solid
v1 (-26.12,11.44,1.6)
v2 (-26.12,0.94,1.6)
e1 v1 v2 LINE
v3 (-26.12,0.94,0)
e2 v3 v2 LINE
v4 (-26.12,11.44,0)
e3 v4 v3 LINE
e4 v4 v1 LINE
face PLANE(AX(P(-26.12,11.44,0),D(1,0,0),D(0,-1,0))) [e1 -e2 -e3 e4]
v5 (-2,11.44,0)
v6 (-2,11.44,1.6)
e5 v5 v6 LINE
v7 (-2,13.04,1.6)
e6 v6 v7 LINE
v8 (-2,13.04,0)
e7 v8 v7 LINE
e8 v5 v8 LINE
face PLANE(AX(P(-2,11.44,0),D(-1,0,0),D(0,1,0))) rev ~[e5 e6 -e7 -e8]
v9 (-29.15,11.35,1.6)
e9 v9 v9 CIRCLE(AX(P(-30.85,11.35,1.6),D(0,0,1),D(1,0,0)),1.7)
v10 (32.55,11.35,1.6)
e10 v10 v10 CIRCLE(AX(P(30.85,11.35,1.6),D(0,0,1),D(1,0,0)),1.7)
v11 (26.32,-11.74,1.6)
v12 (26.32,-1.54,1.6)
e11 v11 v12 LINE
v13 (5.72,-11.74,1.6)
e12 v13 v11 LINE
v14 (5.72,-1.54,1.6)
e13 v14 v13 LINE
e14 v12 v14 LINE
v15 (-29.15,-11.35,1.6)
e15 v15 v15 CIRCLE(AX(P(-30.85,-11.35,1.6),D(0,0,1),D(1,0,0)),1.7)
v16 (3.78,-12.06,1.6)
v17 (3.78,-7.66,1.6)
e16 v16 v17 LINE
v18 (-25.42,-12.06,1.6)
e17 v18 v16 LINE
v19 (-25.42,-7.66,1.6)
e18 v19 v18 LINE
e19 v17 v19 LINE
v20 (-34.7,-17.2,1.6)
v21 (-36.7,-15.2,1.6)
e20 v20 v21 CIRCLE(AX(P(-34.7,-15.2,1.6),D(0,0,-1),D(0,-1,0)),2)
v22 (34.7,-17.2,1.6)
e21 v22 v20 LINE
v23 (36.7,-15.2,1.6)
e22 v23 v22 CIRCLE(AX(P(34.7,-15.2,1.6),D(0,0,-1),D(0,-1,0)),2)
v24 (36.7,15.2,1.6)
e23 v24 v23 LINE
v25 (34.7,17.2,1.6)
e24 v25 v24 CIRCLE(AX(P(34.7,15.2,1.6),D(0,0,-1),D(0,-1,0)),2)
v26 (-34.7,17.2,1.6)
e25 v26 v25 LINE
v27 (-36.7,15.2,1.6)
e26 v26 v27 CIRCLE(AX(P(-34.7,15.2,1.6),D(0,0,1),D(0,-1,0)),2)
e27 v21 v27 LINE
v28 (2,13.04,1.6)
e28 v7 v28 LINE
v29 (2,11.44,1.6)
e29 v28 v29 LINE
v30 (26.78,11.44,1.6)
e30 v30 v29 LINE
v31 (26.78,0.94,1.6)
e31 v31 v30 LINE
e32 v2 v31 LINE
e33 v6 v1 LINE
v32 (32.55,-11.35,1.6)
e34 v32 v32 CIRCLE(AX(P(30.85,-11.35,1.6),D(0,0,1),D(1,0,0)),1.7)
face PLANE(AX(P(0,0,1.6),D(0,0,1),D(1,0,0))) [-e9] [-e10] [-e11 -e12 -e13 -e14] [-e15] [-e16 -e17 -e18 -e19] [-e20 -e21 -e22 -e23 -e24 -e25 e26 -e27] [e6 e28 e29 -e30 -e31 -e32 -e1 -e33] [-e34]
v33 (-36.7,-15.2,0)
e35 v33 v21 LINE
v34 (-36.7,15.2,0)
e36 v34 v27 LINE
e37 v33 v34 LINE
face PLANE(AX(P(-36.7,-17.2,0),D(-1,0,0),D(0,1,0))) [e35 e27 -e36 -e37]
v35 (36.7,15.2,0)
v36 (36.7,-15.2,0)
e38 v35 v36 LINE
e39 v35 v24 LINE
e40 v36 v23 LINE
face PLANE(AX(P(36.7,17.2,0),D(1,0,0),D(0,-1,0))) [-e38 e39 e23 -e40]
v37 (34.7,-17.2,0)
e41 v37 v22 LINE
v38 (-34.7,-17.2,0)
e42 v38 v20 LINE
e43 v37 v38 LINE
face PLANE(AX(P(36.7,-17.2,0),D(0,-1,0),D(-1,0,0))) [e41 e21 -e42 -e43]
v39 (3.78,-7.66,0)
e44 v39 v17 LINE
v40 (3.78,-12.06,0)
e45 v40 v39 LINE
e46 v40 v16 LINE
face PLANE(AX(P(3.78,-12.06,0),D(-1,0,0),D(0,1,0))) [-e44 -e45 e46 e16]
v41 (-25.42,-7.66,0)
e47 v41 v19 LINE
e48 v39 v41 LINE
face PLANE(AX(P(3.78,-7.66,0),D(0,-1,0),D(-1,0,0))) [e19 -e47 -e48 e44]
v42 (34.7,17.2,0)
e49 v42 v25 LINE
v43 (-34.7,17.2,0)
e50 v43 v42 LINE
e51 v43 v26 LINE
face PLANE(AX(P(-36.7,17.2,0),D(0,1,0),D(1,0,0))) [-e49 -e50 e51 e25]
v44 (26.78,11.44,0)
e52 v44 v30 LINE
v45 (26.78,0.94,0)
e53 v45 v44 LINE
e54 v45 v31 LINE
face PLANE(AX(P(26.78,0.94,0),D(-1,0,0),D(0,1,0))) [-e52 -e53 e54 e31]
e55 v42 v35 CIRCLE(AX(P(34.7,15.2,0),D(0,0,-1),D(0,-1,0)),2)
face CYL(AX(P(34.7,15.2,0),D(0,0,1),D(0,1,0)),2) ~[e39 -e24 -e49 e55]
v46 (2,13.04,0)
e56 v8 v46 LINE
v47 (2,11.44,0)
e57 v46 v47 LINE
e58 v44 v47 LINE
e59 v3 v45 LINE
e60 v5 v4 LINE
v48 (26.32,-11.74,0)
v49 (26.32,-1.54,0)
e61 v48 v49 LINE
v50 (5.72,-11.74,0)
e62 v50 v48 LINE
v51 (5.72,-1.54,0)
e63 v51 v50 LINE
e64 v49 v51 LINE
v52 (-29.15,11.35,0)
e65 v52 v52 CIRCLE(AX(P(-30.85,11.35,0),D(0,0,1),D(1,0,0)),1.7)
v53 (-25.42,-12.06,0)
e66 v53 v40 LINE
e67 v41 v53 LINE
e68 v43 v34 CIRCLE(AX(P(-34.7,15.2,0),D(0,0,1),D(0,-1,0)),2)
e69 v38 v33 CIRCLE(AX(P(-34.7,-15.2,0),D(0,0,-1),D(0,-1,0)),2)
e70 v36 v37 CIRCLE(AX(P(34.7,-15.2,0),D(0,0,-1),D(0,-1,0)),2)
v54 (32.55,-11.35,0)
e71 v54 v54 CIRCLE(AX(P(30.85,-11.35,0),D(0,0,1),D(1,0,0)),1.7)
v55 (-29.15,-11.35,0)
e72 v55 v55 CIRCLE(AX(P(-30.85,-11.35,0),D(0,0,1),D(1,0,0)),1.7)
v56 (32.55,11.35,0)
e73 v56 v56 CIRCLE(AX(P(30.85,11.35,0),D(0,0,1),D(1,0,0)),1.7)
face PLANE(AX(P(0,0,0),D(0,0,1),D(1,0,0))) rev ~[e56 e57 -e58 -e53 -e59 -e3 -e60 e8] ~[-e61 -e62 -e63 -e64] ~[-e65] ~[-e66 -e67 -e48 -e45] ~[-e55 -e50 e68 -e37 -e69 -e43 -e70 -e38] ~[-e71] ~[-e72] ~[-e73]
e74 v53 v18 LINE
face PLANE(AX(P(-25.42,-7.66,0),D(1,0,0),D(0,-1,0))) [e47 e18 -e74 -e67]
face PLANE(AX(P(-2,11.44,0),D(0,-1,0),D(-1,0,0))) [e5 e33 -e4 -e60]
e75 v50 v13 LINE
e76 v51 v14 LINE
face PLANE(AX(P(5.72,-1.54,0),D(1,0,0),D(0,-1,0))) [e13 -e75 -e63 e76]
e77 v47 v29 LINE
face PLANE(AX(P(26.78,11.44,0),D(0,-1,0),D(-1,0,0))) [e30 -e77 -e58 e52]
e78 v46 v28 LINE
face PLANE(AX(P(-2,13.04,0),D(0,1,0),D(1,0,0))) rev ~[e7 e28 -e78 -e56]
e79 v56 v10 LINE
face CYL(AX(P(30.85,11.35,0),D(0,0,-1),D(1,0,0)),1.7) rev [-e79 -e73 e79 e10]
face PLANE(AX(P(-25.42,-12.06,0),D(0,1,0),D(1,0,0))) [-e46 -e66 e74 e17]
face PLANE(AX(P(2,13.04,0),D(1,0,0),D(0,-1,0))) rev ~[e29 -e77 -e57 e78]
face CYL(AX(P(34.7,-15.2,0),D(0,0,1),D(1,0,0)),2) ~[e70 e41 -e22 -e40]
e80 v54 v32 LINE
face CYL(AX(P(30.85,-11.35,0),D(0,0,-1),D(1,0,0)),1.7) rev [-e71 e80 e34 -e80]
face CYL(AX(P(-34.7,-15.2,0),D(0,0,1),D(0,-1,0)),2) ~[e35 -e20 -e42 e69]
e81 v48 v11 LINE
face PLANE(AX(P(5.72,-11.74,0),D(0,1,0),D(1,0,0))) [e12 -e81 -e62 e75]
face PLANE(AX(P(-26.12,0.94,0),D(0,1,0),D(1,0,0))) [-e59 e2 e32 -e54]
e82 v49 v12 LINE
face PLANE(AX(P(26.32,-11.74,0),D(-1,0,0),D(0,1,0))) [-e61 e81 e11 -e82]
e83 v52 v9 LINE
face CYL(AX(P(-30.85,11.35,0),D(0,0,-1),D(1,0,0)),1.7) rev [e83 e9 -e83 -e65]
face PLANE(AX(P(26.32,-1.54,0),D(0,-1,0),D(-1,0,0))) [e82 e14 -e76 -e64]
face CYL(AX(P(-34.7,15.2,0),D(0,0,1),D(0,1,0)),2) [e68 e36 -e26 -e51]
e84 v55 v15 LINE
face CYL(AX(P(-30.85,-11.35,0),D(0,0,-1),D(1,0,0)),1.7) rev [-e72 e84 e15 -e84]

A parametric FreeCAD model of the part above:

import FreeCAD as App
import Part
import Sketcher

V = App.Vector


def edges_at(feature, points):
    """Names of the edges that pass closest to the given points."""
    edges = feature.Shape.Edges
    near = lambda p: min(range(len(edges)), key=lambda i: edges[i].distToShape(Part.Vertex(*p))[0])
    return sorted({f"Edge{near(p) + 1}" for p in points})

doc = App.newDocument("Part")
body = doc.addObject("PartDesign::Body", "Body")

# Sketch on XY plane
sketch1 = body.newObject("Sketcher::SketchObject", "Sketch")
sketch1.AttachmentSupport = (doc.getObject("XY_Plane"), [""])
sketch1.MapMode = "FlatFace"
sketch1.addGeometry([
    Part.LineSegment(V(36.7, 17.2, 0), V(-36.7, 17.2, 0)),  # 0
    Part.LineSegment(V(-36.7, 17.2, 0), V(-36.7, -17.2, 0)),  # 1
    Part.LineSegment(V(-36.7, -17.2, 0), V(36.7, -17.2, 0)),  # 2
    Part.LineSegment(V(36.7, -17.2, 0), V(36.7, 17.2, 0)),  # 3
    Part.Circle(V(-30.85, -11.35, 0), V(0, 0, 1), 1.7),  # 4
    Part.LineSegment(V(-25.42, -7.66, 0), V(3.78, -7.66, 0)),  # 5
    Part.LineSegment(V(3.78, -7.66, 0), V(3.78, -12.06, 0)),  # 6
    Part.LineSegment(V(3.78, -12.06, 0), V(-25.42, -12.06, 0)),  # 7
    Part.LineSegment(V(-25.42, -12.06, 0), V(-25.42, -7.66, 0)),  # 8
    Part.Circle(V(30.85, -11.35, 0), V(0, 0, 1), 1.7),  # 9
    Part.LineSegment(V(5.72, -1.54, 0), V(26.32, -1.54, 0)),  # 10
    Part.LineSegment(V(26.32, -1.54, 0), V(26.32, -11.74, 0)),  # 11
    Part.LineSegment(V(26.32, -11.74, 0), V(5.72, -11.74, 0)),  # 12
    Part.LineSegment(V(5.72, -11.74, 0), V(5.72, -1.54, 0)),  # 13
    Part.Circle(V(-30.85, 11.35, 0), V(0, 0, 1), 1.7),  # 14
    Part.LineSegment(V(26.78, 11.44, 0), V(26.78, 0.94, 0)),  # 15
    Part.LineSegment(V(26.78, 0.94, 0), V(-26.12, 0.94, 0)),  # 16
    Part.LineSegment(V(-26.12, 0.94, 0), V(-26.12, 11.44, 0)),  # 17
    Part.LineSegment(V(-26.12, 11.44, 0), V(-2, 11.44, 0)),  # 18
    Part.LineSegment(V(-2, 11.44, 0), V(-2, 13.04, 0)),  # 19
    Part.LineSegment(V(-2, 13.04, 0), V(2, 13.04, 0)),  # 20
    Part.LineSegment(V(2, 13.04, 0), V(2, 11.44, 0)),  # 21
    Part.LineSegment(V(2, 11.44, 0), V(26.78, 11.44, 0)),  # 22
    Part.Circle(V(30.85, 11.35, 0), V(0, 0, 1), 1.7),  # 23
], False)
sketch1.addConstraint([
    Sketcher.Constraint("Coincident", 0, 2, 1, 1),
    Sketcher.Constraint("Coincident", 1, 2, 2, 1),
    Sketcher.Constraint("Coincident", 2, 2, 3, 1),
    Sketcher.Constraint("Coincident", 3, 2, 0, 1),
    Sketcher.Constraint("Coincident", 5, 2, 6, 1),
    Sketcher.Constraint("Coincident", 6, 2, 7, 1),
    Sketcher.Constraint("Coincident", 7, 2, 8, 1),
    Sketcher.Constraint("Coincident", 8, 2, 5, 1),
    Sketcher.Constraint("Coincident", 10, 2, 11, 1),
    Sketcher.Constraint("Coincident", 11, 2, 12, 1),
    Sketcher.Constraint("Coincident", 12, 2, 13, 1),
    Sketcher.Constraint("Coincident", 13, 2, 10, 1),
    Sketcher.Constraint("Coincident", 15, 2, 16, 1),
    Sketcher.Constraint("Coincident", 16, 2, 17, 1),
    Sketcher.Constraint("Coincident", 17, 2, 18, 1),
    Sketcher.Constraint("Coincident", 18, 2, 19, 1),
    Sketcher.Constraint("Coincident", 19, 2, 20, 1),
    Sketcher.Constraint("Coincident", 20, 2, 21, 1),
    Sketcher.Constraint("Coincident", 21, 2, 22, 1),
    Sketcher.Constraint("Coincident", 22, 2, 15, 1),
    Sketcher.Constraint("Horizontal", 0),
    Sketcher.Constraint("Vertical", 1),
    Sketcher.Constraint("Horizontal", 2),
    Sketcher.Constraint("Vertical", 3),
    Sketcher.Constraint("Horizontal", 5),
    Sketcher.Constraint("Vertical", 6),
    Sketcher.Constraint("Horizontal", 7),
    Sketcher.Constraint("Vertical", 8),
    Sketcher.Constraint("Horizontal", 10),
    Sketcher.Constraint("Vertical", 11),
    Sketcher.Constraint("Horizontal", 12),
    Sketcher.Constraint("Vertical", 13),
    Sketcher.Constraint("Vertical", 15),
    Sketcher.Constraint("Horizontal", 16),
    Sketcher.Constraint("Vertical", 17),
    Sketcher.Constraint("Horizontal", 18),
    Sketcher.Constraint("Vertical", 19),
    Sketcher.Constraint("Horizontal", 20),
    Sketcher.Constraint("Vertical", 21),
    Sketcher.Constraint("Horizontal", 22),
    Sketcher.Constraint("Equal", 4, 9),
    Sketcher.Constraint("Equal", 9, 14),
    Sketcher.Constraint("Equal", 14, 23),
    Sketcher.Constraint("Symmetric", 9, 3, 14, 3, -1, 1),
    Sketcher.Constraint("Symmetric", 4, 3, 23, 3, -1, 1),
    Sketcher.Constraint("Symmetric", 0, 2, 2, 2, -1, 1),
    Sketcher.Constraint("Symmetric", 4, 3, 9, 3, -2),
    Sketcher.Constraint("Symmetric", 18, 2, 21, 2, -2),
    Sketcher.Constraint("Diameter", 4, 3.4),
    Sketcher.Constraint("DistanceX", 20, 1, 20, 2, 4.0),
    Sketcher.Constraint("DistanceX", 0, 2, 0, 1, 73.4),
    Sketcher.Constraint("DistanceY", 1, 2, 1, 1, 34.4),
    Sketcher.Constraint("DistanceY", 19, 1, 19, 2, 1.6),
    Sketcher.Constraint("DistanceX", 4, 3, 9, 3, 61.7),
    Sketcher.Constraint("DistanceY", 4, 3, 14, 3, 22.7),
    Sketcher.Constraint("DistanceY", 8, 2, 16, 2, 8.6),
    Sketcher.Constraint("DistanceX", 5, 1, 5, 2, 29.2),
    Sketcher.Constraint("DistanceX", 10, 1, 10, 2, 20.6),
    Sketcher.Constraint("DistanceX", 16, 2, 16, 1, 52.9),
    Sketcher.Constraint("DistanceY", 6, 2, 6, 1, 4.4),
    Sketcher.Constraint("DistanceY", 11, 2, 11, 1, 10.2),
    Sketcher.Constraint("DistanceY", 15, 2, 15, 1, 10.5),
    Sketcher.Constraint("DistanceX", 18, 1, 18, 2, 24.12),
    Sketcher.Constraint("DistanceX", 16, 2, 8, 2, 0.7),
    Sketcher.Constraint("DistanceY", 5, 2, -1, 1, 7.66),
    Sketcher.Constraint("DistanceX", -1, 1, 10, 2, 26.32),
    Sketcher.Constraint("DistanceY", 10, 2, -1, 1, 1.54),
])
pad1 = body.newObject("PartDesign::Pad", "Pad")
pad1.Profile = sketch1
pad1.Length = 1.6
doc.recompute()

fillet = body.newObject("PartDesign::Fillet", "Fillet")
fillet.Base = (pad1, edges_at(pad1, [
    (-36.7, 17.2, 0.8),
    (-36.7, -17.2, 0.8),
    (36.7, -17.2, 0.8),
    (36.7, 17.2, 0.8),
]))
fillet.Radius = 2

doc.recompute()
